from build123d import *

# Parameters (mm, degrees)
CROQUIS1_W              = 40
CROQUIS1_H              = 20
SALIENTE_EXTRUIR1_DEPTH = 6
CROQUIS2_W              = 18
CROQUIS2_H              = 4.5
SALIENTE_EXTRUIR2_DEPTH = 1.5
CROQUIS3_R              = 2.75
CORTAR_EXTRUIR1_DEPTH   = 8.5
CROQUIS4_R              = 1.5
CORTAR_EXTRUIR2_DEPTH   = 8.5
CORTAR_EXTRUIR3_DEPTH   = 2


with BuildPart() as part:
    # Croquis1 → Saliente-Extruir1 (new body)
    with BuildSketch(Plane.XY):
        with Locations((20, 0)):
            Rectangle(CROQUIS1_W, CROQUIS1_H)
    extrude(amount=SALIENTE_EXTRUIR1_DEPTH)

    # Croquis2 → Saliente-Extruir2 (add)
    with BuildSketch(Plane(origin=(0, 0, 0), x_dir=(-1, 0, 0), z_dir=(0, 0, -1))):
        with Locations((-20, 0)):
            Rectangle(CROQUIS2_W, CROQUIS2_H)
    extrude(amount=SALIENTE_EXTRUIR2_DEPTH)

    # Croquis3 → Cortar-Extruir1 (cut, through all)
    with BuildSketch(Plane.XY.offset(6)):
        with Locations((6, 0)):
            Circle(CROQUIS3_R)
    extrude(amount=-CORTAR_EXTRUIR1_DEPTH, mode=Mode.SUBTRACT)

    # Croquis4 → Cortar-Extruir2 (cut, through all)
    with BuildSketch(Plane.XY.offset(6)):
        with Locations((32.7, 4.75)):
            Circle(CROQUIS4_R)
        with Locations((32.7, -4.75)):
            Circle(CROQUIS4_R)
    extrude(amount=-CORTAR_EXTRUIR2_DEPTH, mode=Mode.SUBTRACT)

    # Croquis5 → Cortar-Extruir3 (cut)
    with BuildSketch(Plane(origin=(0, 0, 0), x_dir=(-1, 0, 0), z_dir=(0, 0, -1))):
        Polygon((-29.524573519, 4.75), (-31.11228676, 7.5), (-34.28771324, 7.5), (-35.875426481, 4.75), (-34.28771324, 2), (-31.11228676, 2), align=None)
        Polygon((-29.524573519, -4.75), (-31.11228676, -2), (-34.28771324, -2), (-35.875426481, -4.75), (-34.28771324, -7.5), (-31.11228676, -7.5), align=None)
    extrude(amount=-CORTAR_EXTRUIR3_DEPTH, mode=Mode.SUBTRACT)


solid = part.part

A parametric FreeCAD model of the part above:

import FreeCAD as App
import Part
import Sketcher
Q = App.Units.Quantity

doc = App.newDocument("Part")
body = doc.addObject("PartDesign::Body", "Body")

sketch1 = body.newObject("Sketcher::SketchObject", "Sketch")
sketch1.AttachmentSupport = (doc.getObject("XY_Plane"), [""])
sketch1.MapMode = "FlatFace"
sketch1.addGeometry([
    Part.LineSegment(App.Vector(0, 10, 0), App.Vector(0, -10, 0)),
    Part.LineSegment(App.Vector(0, -10, 0), App.Vector(40, -10, 0)),
    Part.LineSegment(App.Vector(40, -10, 0), App.Vector(40, 10, 0)),
    Part.LineSegment(App.Vector(40, 10, 0), App.Vector(0, 10, 0)),
], False)
sketch1.addConstraint([
    Sketcher.Constraint("Coincident", 0, 2, 1, 1),
    Sketcher.Constraint("Coincident", 1, 2, 2, 1),
    Sketcher.Constraint("Coincident", 2, 2, 3, 1),
    Sketcher.Constraint("Coincident", 3, 2, 0, 1),
    Sketcher.Constraint("Vertical", 0),
    Sketcher.Constraint("Horizontal", 1),
    Sketcher.Constraint("Vertical", 2),
    Sketcher.Constraint("Horizontal", 3),
    Sketcher.Constraint("Symmetric", 0, 2, 3, 2, -1, 1),
    Sketcher.Constraint("DistanceX", 1, 1, 1, 2, Q("40 mm")),
    Sketcher.Constraint("DistanceY", 0, 2, 0, 1, Q("20 mm")),
])
pad1 = body.newObject("PartDesign::Pad", "Pad")
pad1.Profile = sketch1
pad1.Length = 6

sketch2 = body.newObject("Sketcher::SketchObject", "Sketch001")
sketch2.AttachmentSupport = (doc.getObject("XY_Plane"), [""])
sketch2.MapMode = "FlatFace"
sketch2.addGeometry([
    Part.LineSegment(App.Vector(29, 2.2, 0), App.Vector(29, -2.2, 0)),
    Part.LineSegment(App.Vector(29, -2.2, 0), App.Vector(11, -2.2, 0)),
    Part.LineSegment(App.Vector(11, -2.2, 0), App.Vector(11, 2.2, 0)),
    Part.LineSegment(App.Vector(11, 2.2, 0), App.Vector(29, 2.2, 0)),
], False)
sketch2.addConstraint([
    Sketcher.Constraint("Coincident", 0, 2, 1, 1),
    Sketcher.Constraint("Coincident", 1, 2, 2, 1),
    Sketcher.Constraint("Coincident", 2, 2, 3, 1),
    Sketcher.Constraint("Coincident", 3, 2, 0, 1),
    Sketcher.Constraint("Vertical", 0),
    Sketcher.Constraint("Horizontal", 1),
    Sketcher.Constraint("Vertical", 2),
    Sketcher.Constraint("Horizontal", 3),
    Sketcher.Constraint("DistanceX", 1, 2, 1, 1, Q("18 mm")),
    Sketcher.Constraint("DistanceY", 0, 2, 0, 1, Q("4.5 mm")),
    Sketcher.Constraint("DistanceX", -1, 1, 0, 2, Q("29 mm")),
    Sketcher.Constraint("DistanceY", 0, 2, -1, 1, Q("2.25 mm")),
])
pad2 = body.newObject("PartDesign::Pad", "Pad001")
pad2.Profile = sketch2
pad2.Length = 1.5
pad2.Reversed = True

sketch3 = body.newObject("Sketcher::SketchObject", "Sketch002")
sketch3.AttachmentSupport = (doc.getObject("XY_Plane"), [""])
sketch3.MapMode = "FlatFace"
sketch3.AttachmentOffset = App.Placement(App.Vector(0, 0, 6), App.Rotation())
sketch3.addGeometry(Part.Circle(App.Vector(6, 0, 0), App.Vector(0, 0, 1), 2.8), False)
sketch3.addConstraint([
    Sketcher.Constraint("PointOnObject", 0, 3, -1),
    Sketcher.Constraint("Diameter", 0, Q("5.5 mm")),
    Sketcher.Constraint("DistanceX", -1, 1, 0, 3, Q("6 mm")),
])
pocket1 = body.newObject("PartDesign::Pocket", "Pocket")
pocket1.Profile = sketch3
pocket1.Type = "ThroughAll"

sketch4 = body.newObject("Sketcher::SketchObject", "Sketch003")
sketch4.AttachmentSupport = (doc.getObject("XY_Plane"), [""])
sketch4.MapMode = "FlatFace"
sketch4.AttachmentOffset = App.Placement(App.Vector(0, 0, 6), App.Rotation())
sketch4.addGeometry([
    Part.Circle(App.Vector(32.7, 4.8, 0), App.Vector(0, 0, 1), 1.5),
    Part.Circle(App.Vector(32.7, -4.8, 0), App.Vector(0, 0, 1), 1.5),
], False)
sketch4.addConstraint([
    Sketcher.Constraint("Equal", 0, 1),
    Sketcher.Constraint("Symmetric", 0, 3, 1, 3, -1),
    Sketcher.Constraint("Diameter", 0, Q("3 mm")),
    Sketcher.Constraint("DistanceX", -1, 1, 0, 3, Q("32.7 mm")),
    Sketcher.Constraint("DistanceY", 1, 3, 0, 3, Q("9.5 mm")),
])
pocket2 = body.newObject("PartDesign::Pocket", "Pocket001")
pocket2.Profile = sketch4
pocket2.Type = "ThroughAll"

sketch5 = body.newObject("Sketcher::SketchObject", "Sketch004")
sketch5.AttachmentSupport = (doc.getObject("XY_Plane"), [""])
sketch5.MapMode = "FlatFace"
sketch5.addGeometry([
    Part.LineSegment(App.Vector(29.5, 4.8, 0), App.Vector(31.1, 7.5, 0)),
    Part.LineSegment(App.Vector(31.1, 7.5, 0), App.Vector(34.3, 7.5, 0)),
    Part.LineSegment(App.Vector(34.3, 7.5, 0), App.Vector(35.9, 4.8, 0)),
    Part.LineSegment(App.Vector(35.9, 4.8, 0), App.Vector(34.3, 2, 0)),
    Part.LineSegment(App.Vector(34.3, 2, 0), App.Vector(31.1, 2, 0)),
    Part.LineSegment(App.Vector(31.1, 2, 0), App.Vector(29.5, 4.8, 0)),
    Part.LineSegment(App.Vector(29.5, -4.8, 0), App.Vector(31.1, -2, 0)),
    Part.LineSegment(App.Vector(31.1, -2, 0), App.Vector(34.3, -2, 0)),
    Part.LineSegment(App.Vector(34.3, -2, 0), App.Vector(35.9, -4.8, 0)),
    Part.LineSegment(App.Vector(35.9, -4.8, 0), App.Vector(34.3, -7.5, 0)),
    Part.LineSegment(App.Vector(34.3, -7.5, 0), App.Vector(31.1, -7.5, 0)),
    Part.LineSegment(App.Vector(31.1, -7.5, 0), App.Vector(29.5, -4.8, 0)),
], False)
sketch5.addConstraint([
    Sketcher.Constraint("Coincident", 0, 2, 1, 1),
    Sketcher.Constraint("Coincident", 1, 2, 2, 1),
    Sketcher.Constraint("Coincident", 2, 2, 3, 1),
    Sketcher.Constraint("Coincident", 3, 2, 4, 1),
    Sketcher.Constraint("Coincident", 4, 2, 5, 1),
    Sketcher.Constraint("Coincident", 5, 2, 0, 1),
    Sketcher.Constraint("Coincident", 6, 2, 7, 1),
    Sketcher.Constraint("Coincident", 7, 2, 8, 1),
    Sketcher.Constraint("Coincident", 8, 2, 9, 1),
    Sketcher.Constraint("Coincident", 9, 2, 10, 1),
    Sketcher.Constraint("Coincident", 10, 2, 11, 1),
    Sketcher.Constraint("Coincident", 11, 2, 6, 1),
    Sketcher.Constraint("Horizontal", 1),
    Sketcher.Constraint("Horizontal", 4),
    Sketcher.Constraint("Horizontal", 7),
    Sketcher.Constraint("Horizontal", 10),
    Sketcher.Constraint("Symmetric", 4, 2, 6, 2, -1),
    Sketcher.Constraint("Symmetric", 2, 2, 8, 2, -1),
    Sketcher.Constraint("Symmetric", 1, 2, 9, 2, -1),
    Sketcher.Constraint("Symmetric", 5, 2, 11, 2, -1),
    Sketcher.Constraint("Parallel", 0, 3),
    Sketcher.Constraint("Parallel", 2, 5),
    Sketcher.Constraint("Parallel", 3, 6),
    Sketcher.Constraint("Parallel", 5, 8),
    Sketcher.Constraint("Parallel", 8, 11),
    Sketcher.Constraint("Horizontal", 2, 2, 5, 2),
    Sketcher.Constraint("Vertical", 1, 2, 3, 2),
    Sketcher.Constraint("Angle", 0, Q("60 deg")),
    Sketcher.Constraint("DistanceY", -1, 1, 3, 2, Q("2 mm")),
    Sketcher.Constraint("DistanceY", -1, 1, 0, 2, Q("7.5 mm")),
    Sketcher.Constraint("DistanceX", 1, 1, 1, 2, Q("3.175426 mm")),
    Sketcher.Constraint("DistanceX", -1, 1, 0, 2, Q("31.112287 mm")),
])
pocket3 = body.newObject("PartDesign::Pocket", "Pocket002")
pocket3.Profile = sketch5
pocket3.Length = 2
pocket3.Reversed = True

doc.recompute()
